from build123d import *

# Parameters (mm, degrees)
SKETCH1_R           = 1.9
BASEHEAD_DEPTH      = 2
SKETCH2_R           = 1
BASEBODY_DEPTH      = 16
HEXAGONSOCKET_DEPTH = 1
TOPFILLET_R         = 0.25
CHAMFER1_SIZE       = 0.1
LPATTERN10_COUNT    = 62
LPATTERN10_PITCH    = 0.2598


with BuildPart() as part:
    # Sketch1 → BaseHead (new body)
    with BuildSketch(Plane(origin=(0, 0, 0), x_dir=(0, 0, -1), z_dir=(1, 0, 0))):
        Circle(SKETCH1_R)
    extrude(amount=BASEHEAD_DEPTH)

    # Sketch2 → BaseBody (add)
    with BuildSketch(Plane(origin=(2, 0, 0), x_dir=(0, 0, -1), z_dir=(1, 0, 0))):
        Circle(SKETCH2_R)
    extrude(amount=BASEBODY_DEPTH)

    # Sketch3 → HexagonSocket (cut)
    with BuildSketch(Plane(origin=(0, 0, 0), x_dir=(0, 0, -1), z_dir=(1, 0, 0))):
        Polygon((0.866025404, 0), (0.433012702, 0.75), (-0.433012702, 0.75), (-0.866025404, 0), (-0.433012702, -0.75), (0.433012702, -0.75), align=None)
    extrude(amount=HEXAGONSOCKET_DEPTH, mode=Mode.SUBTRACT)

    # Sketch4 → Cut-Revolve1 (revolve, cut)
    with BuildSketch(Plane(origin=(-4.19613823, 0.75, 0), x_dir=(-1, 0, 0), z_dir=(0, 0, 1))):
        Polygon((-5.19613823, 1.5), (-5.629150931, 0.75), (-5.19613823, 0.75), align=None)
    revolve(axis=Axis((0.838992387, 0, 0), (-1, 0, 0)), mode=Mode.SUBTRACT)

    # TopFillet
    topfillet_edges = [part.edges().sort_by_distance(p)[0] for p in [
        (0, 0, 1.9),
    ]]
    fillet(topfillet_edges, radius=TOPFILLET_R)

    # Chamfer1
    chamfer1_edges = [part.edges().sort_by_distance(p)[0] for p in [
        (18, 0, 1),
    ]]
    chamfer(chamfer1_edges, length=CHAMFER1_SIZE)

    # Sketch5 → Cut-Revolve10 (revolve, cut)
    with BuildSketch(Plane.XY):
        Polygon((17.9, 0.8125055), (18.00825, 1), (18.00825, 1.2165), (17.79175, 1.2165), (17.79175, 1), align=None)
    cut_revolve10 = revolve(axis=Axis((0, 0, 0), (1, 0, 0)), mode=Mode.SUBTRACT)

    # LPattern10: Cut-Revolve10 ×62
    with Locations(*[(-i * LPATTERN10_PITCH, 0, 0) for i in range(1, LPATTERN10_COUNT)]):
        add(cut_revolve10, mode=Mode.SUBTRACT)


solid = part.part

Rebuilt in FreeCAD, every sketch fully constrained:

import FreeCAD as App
import Part
import Sketcher
from FreeCAD import Vector
Q = App.Units.Quantity


def edges_at(feature, points):
    """Names of the edges that pass closest to the given points."""
    edges = feature.Shape.Edges
    near = lambda p: min(range(len(edges)), key=lambda i: edges[i].distToShape(Part.Vertex(*p))[0])
    return sorted({f"Edge{near(p) + 1}" for p in points})


def add_polygon(sketch, points):
    """Adds a closed chain of lines whose ends are joined by coincident constraints."""
    first, n = sketch.GeometryCount, len(points)
    for a, b in zip(points, points[1:] + points[:1]):
        sketch.addGeometry(Part.LineSegment(App.Vector(*a, 0), App.Vector(*b, 0)), False)
    for i in range(n):
        sketch.addConstraint(Sketcher.Constraint("Coincident", first + i, 2, first + (i + 1) % n, 1))

doc = App.newDocument("Part")
body = doc.addObject("PartDesign::Body", "Body")

# Sketch on YZ plane
sketch1 = body.newObject("Sketcher::SketchObject", "Sketch")
sketch1.AttachmentSupport = (doc.getObject("YZ_Plane"), [""])
sketch1.MapMode = "FlatFace"
sketch1.addGeometry(Part.Circle(Vector(0, 0, 0), Vector(0, 0, 1), 1.9), False)
sketch1.addConstraint(Sketcher.Constraint("Coincident", 0, 3, -1, 1))
sketch1.addConstraint(Sketcher.Constraint("Diameter", 0, 3.8))
pad1 = body.newObject("PartDesign::Pad", "Pad")
pad1.Profile = sketch1
pad1.Length = 2

# Sketch on YZ plane
sketch2 = body.newObject("Sketcher::SketchObject", "Sketch001")
sketch2.AttachmentSupport = (doc.getObject("YZ_Plane"), [""])
sketch2.MapMode = "FlatFace"
sketch2.AttachmentOffset = App.Placement(Vector(0, 0, 2), App.Rotation())
sketch2.addGeometry(Part.Circle(Vector(0, 0, 0), Vector(0, 0, 1), 1), False)
sketch2.addConstraint(Sketcher.Constraint("Coincident", 0, 3, -1, 1))
sketch2.addConstraint(Sketcher.Constraint("Diameter", 0, 2.0))
pad2 = body.newObject("PartDesign::Pad", "Pad001")
pad2.Profile = sketch2
pad2.Length = 16

# Sketch on YZ plane
sketch3 = body.newObject("Sketcher::SketchObject", "Sketch002")
sketch3.AttachmentSupport = (doc.getObject("YZ_Plane"), [""])
sketch3.MapMode = "FlatFace"
add_polygon(sketch3, [(0, -0.9), (0.8, -0.4), (0.8, 0.4), (0, 0.9), (-0.8, 0.4), (-0.8, -0.4)])  # lines 0-5
sketch3.addConstraint(Sketcher.Constraint("Vertical", 1))
sketch3.addConstraint(Sketcher.Constraint("Vertical", 4))
sketch3.addConstraint(Sketcher.Constraint("Symmetric", 0, 2, 3, 2, -1, 1))
sketch3.addConstraint(Sketcher.Constraint("Symmetric", 2, 2, 5, 2, -1, 1))
sketch3.addConstraint(Sketcher.Constraint("PointOnObject", 2, 2, -2))
sketch3.addConstraint(Sketcher.Constraint("Parallel", 2, 5))
sketch3.addConstraint(Sketcher.Constraint("Horizontal", 1, 2, 3, 2))
sketch3.addConstraint(Sketcher.Constraint("Angle", 0, Q("30 deg")))
sketch3.addConstraint(Sketcher.Constraint("DistanceX", 3, 2, 1, 2, 1.5))
sketch3.addConstraint(Sketcher.Constraint("DistanceY", 1, 1, 1, 2, 0.866025))
pocket1 = body.newObject("PartDesign::Pocket", "Pocket")
pocket1.Profile = sketch3
pocket1.Length = 1
pocket1.Reversed = True

# Sketch on XY plane
sketch4 = body.newObject("Sketcher::SketchObject", "Sketch003")
sketch4.AttachmentSupport = (doc.getObject("XY_Plane"), [""])
sketch4.MapMode = "FlatFace"
add_polygon(sketch4, [(1, -0.75), (1.43, 0), (1, 0)])  # lines 0-2
sketch4.addConstraint(Sketcher.Constraint("Horizontal", 1))
sketch4.addConstraint(Sketcher.Constraint("Vertical", 2))
sketch4.addConstraint(Sketcher.Constraint("PointOnObject", 0, 2, -1))
sketch4.addConstraint(Sketcher.Constraint("Angle", 0, Q("60 deg")))
sketch4.addConstraint(Sketcher.Constraint("DistanceX", -1, 1, 1, 2, 1.0))
sketch4.addConstraint(Sketcher.Constraint("DistanceY", 2, 2, 2, 1, 0.75))
groove = body.newObject("PartDesign::Groove", "Groove")
groove.Profile = sketch4
groove.ReferenceAxis = (sketch4, ["H_Axis"])
groove.Angle = 360
doc.recompute()

fillet = body.newObject("PartDesign::Fillet", "Fillet")
fillet.Base = (groove, edges_at(groove, [(0, 0, 1.9)]))
fillet.Radius = 0.25
doc.recompute()

chamfer = body.newObject("PartDesign::Chamfer", "Chamfer")
chamfer.Base = (fillet, edges_at(fillet, [(18, 0, 1)]))
chamfer.Size = 0.1

# Sketch on XY plane
sketch5 = body.newObject("Sketcher::SketchObject", "Sketch004")
sketch5.AttachmentSupport = (doc.getObject("XY_Plane"), [""])
sketch5.MapMode = "FlatFace"
add_polygon(sketch5, [(17.9, 0.81), (18.01, 1), (18.01, 1.22), (17.79, 1.22), (17.79, 1)])  # lines 0-4
sketch5.addConstraint(Sketcher.Constraint("Vertical", 1))
sketch5.addConstraint(Sketcher.Constraint("Horizontal", 2))
sketch5.addConstraint(Sketcher.Constraint("Vertical", 3))
sketch5.addConstraint(Sketcher.Constraint("Horizontal", 0, 2, 3, 2))
sketch5.addConstraint(Sketcher.Constraint("Equal", 2, 1))
sketch5.addConstraint(Sketcher.Constraint("Equal", 0, 4))
sketch5.addConstraint(Sketcher.Constraint("Angle", 0, Q("60 deg")))
sketch5.addConstraint(Sketcher.Constraint("DistanceY", -1, 1, 0, 2, 1.0))
sketch5.addConstraint(Sketcher.Constraint("DistanceX", -1, 1, 4, 2, 17.9))
sketch5.addConstraint(Sketcher.Constraint("DistanceX", 2, 2, 2, 1, 0.2165))
groove2 = body.newObject("PartDesign::Groove", "Groove001")
groove2.Profile = sketch5
groove2.ReferenceAxis = (sketch5, ["H_Axis"])
groove2.Angle = 360
doc.recompute()

linearpattern = body.newObject("PartDesign::LinearPattern", "LinearPattern")
linearpattern.Originals = [groove2]
linearpattern.Direction = (doc.getObject("X_Axis"), [""])
linearpattern.Mode = "offset"
linearpattern.Offset = 0.2598
linearpattern.Occurrences = 62
linearpattern.Reversed = True
body.Tip = linearpattern

doc.recompute()
